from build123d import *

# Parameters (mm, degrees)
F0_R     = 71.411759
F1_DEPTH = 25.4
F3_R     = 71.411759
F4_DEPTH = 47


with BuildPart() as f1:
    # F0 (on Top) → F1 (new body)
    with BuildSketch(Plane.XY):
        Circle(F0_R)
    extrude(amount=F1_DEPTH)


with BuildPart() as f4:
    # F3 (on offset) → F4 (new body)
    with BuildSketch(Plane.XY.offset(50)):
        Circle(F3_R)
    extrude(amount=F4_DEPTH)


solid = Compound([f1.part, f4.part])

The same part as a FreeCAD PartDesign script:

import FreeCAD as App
import Part
import Sketcher
Q = App.Units.Quantity

doc = App.newDocument("Part")
body = doc.addObject("PartDesign::Body", "Body")

# Sketch on XY plane
sketch1 = body.newObject("Sketcher::SketchObject", "Sketch")
sketch1.AttachmentSupport = (doc.getObject("XY_Plane"), [""])
sketch1.MapMode = "FlatFace"
sketch1.addGeometry(Part.Circle(App.Vector(0, 0, 0), App.Vector(0, 0, 1), 71.411759), False)
sketch1.addConstraint(Sketcher.Constraint("Coincident", 0, 3, -1, 1))
sketch1.addConstraint(Sketcher.Constraint("Diameter", 0, Q("142.823518 mm")))
pad1 = body.newObject("PartDesign::Pad", "Pad")
pad1.Profile = sketch1
pad1.Length = 25.4
body2 = doc.addObject("PartDesign::Body", "Body001")

# Sketch on XY plane
sketch2 = body2.newObject("Sketcher::SketchObject", "Sketch001")
sketch2.AttachmentSupport = (doc.getObject("XY_Plane001"), [""])
sketch2.MapMode = "FlatFace"
sketch2.AttachmentOffset = App.Placement(App.Vector(0, 0, 50), App.Rotation())
sketch2.addGeometry(Part.Circle(App.Vector(0, 0, 0), App.Vector(0, 0, 1), 71.411759), False)
sketch2.addConstraint(Sketcher.Constraint("Coincident", 0, 3, -1, 1))
sketch2.addConstraint(Sketcher.Constraint("Diameter", 0, Q("142.823518 mm")))
pad2 = body2.newObject("PartDesign::Pad", "Pad001")
pad2.Profile = sketch2
pad2.Length = 47

doc.recompute()
